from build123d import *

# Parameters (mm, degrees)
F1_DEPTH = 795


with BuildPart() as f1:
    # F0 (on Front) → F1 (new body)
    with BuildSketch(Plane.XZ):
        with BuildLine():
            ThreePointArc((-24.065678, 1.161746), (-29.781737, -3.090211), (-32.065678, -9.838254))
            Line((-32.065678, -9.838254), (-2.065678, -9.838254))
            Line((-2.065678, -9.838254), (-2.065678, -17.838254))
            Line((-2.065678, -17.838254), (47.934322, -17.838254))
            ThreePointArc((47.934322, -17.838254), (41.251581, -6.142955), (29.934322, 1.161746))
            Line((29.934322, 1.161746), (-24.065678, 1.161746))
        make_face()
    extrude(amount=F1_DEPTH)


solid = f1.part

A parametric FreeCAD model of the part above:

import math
import FreeCAD as App
import Part
import Sketcher

doc = App.newDocument("Part")
params = doc.addObject("Spreadsheet::Sheet", "Params")
for row, (alias, value) in enumerate([
    ("sketch1_width", "30 mm"),
    ("sketch1_width2", "50 mm"),
    ("sketch1_width3", "54 mm"),
    ("sketch1_height", "8 mm"),
    ("pad1_length", "795 mm"),
], start=1):
    params.set(f"A{row}", alias)
    params.set(f"B{row}", "=" + value)
    params.setAlias(f"B{row}", alias)

body = doc.addObject("PartDesign::Body", "Body")

# Sketch on XZ plane
sketch1 = body.newObject("Sketcher::SketchObject", "Sketch")
sketch1.AttachmentSupport = (doc.getObject("XZ_Plane"), [""])
sketch1.MapMode = "FlatFace"
sketch1.addGeometry(Part.ArcOfCircle(Part.Circle(App.Vector(-20.109908, -10.124268, 0), App.Vector(0, 0, 1), 11.95919), math.radians(109.315662), math.radians(178.629591)), False)
sketch1.addGeometry(Part.LineSegment(App.Vector(-32.065678, -9.838254, 0), App.Vector(-2.065678, -9.838254, 0)), False)
sketch1.addGeometry(Part.LineSegment(App.Vector(-2.065678, -9.838254, 0), App.Vector(-2.065678, -17.838254, 0)), False)
sketch1.addGeometry(Part.LineSegment(App.Vector(-2.065678, -17.838254, 0), App.Vector(47.934322, -17.838254, 0)), False)
sketch1.addGeometry(Part.ArcOfCircle(Part.Circle(App.Vector(20.619518, -25.689121, 0), App.Vector(0, 0, 1), 28.420673), math.radians(16.035799), math.radians(70.867886)), False)
sketch1.addGeometry(Part.LineSegment(App.Vector(29.934322, 1.161746, 0), App.Vector(-24.065678, 1.161746, 0)), False)
sketch1.addConstraint(Sketcher.Constraint("Coincident", 0, 2, 1, 1))
sketch1.addConstraint(Sketcher.Constraint("Coincident", 1, 2, 2, 1))
sketch1.addConstraint(Sketcher.Constraint("Coincident", 2, 2, 3, 1))
sketch1.addConstraint(Sketcher.Constraint("Coincident", 3, 2, 4, 1))
sketch1.addConstraint(Sketcher.Constraint("Coincident", 4, 2, 5, 1))
sketch1.addConstraint(Sketcher.Constraint("Coincident", 5, 2, 0, 1))
sketch1.addConstraint(Sketcher.Constraint("Horizontal", 1))
sketch1.addConstraint(Sketcher.Constraint("Vertical", 2))
sketch1.addConstraint(Sketcher.Constraint("Horizontal", 3))
sketch1.addConstraint(Sketcher.Constraint("Horizontal", 5))
sketch1.addConstraint(Sketcher.Constraint("DistanceX", 1, 1, 1, 2, 30.0))
sketch1.addConstraint(Sketcher.Constraint("DistanceX", 3, 1, 3, 2, 50.0))
sketch1.addConstraint(Sketcher.Constraint("DistanceX", 5, 2, 5, 1, 54.0))
sketch1.addConstraint(Sketcher.Constraint("DistanceY", 2, 2, 2, 1, 8.0))
sketch1.addConstraint(Sketcher.Constraint("DistanceX", 4, 2, 3, 2, 18.0))
sketch1.addConstraint(Sketcher.Constraint("DistanceY", 3, 2, 4, 2, 19.0))
sketch1.addConstraint(Sketcher.Constraint("Radius", 0, 11.95919))
sketch1.addConstraint(Sketcher.Constraint("Radius", 4, 28.420673))
sketch1.addConstraint(Sketcher.Constraint("DistanceX", 0, 3, -1, 1, 20.109908))
sketch1.addConstraint(Sketcher.Constraint("DistanceY", 0, 3, -1, 1, 10.124268))
sketch1.setExpression("Constraints[10]", "Params.sketch1_width")
sketch1.setExpression("Constraints[11]", "Params.sketch1_width2")
sketch1.setExpression("Constraints[12]", "Params.sketch1_width3")
sketch1.setExpression("Constraints[13]", "Params.sketch1_height")
pad1 = body.newObject("PartDesign::Pad", "Pad")
pad1.Profile = sketch1
pad1.setExpression("Length", "Params.pad1_length")

doc.recompute()
